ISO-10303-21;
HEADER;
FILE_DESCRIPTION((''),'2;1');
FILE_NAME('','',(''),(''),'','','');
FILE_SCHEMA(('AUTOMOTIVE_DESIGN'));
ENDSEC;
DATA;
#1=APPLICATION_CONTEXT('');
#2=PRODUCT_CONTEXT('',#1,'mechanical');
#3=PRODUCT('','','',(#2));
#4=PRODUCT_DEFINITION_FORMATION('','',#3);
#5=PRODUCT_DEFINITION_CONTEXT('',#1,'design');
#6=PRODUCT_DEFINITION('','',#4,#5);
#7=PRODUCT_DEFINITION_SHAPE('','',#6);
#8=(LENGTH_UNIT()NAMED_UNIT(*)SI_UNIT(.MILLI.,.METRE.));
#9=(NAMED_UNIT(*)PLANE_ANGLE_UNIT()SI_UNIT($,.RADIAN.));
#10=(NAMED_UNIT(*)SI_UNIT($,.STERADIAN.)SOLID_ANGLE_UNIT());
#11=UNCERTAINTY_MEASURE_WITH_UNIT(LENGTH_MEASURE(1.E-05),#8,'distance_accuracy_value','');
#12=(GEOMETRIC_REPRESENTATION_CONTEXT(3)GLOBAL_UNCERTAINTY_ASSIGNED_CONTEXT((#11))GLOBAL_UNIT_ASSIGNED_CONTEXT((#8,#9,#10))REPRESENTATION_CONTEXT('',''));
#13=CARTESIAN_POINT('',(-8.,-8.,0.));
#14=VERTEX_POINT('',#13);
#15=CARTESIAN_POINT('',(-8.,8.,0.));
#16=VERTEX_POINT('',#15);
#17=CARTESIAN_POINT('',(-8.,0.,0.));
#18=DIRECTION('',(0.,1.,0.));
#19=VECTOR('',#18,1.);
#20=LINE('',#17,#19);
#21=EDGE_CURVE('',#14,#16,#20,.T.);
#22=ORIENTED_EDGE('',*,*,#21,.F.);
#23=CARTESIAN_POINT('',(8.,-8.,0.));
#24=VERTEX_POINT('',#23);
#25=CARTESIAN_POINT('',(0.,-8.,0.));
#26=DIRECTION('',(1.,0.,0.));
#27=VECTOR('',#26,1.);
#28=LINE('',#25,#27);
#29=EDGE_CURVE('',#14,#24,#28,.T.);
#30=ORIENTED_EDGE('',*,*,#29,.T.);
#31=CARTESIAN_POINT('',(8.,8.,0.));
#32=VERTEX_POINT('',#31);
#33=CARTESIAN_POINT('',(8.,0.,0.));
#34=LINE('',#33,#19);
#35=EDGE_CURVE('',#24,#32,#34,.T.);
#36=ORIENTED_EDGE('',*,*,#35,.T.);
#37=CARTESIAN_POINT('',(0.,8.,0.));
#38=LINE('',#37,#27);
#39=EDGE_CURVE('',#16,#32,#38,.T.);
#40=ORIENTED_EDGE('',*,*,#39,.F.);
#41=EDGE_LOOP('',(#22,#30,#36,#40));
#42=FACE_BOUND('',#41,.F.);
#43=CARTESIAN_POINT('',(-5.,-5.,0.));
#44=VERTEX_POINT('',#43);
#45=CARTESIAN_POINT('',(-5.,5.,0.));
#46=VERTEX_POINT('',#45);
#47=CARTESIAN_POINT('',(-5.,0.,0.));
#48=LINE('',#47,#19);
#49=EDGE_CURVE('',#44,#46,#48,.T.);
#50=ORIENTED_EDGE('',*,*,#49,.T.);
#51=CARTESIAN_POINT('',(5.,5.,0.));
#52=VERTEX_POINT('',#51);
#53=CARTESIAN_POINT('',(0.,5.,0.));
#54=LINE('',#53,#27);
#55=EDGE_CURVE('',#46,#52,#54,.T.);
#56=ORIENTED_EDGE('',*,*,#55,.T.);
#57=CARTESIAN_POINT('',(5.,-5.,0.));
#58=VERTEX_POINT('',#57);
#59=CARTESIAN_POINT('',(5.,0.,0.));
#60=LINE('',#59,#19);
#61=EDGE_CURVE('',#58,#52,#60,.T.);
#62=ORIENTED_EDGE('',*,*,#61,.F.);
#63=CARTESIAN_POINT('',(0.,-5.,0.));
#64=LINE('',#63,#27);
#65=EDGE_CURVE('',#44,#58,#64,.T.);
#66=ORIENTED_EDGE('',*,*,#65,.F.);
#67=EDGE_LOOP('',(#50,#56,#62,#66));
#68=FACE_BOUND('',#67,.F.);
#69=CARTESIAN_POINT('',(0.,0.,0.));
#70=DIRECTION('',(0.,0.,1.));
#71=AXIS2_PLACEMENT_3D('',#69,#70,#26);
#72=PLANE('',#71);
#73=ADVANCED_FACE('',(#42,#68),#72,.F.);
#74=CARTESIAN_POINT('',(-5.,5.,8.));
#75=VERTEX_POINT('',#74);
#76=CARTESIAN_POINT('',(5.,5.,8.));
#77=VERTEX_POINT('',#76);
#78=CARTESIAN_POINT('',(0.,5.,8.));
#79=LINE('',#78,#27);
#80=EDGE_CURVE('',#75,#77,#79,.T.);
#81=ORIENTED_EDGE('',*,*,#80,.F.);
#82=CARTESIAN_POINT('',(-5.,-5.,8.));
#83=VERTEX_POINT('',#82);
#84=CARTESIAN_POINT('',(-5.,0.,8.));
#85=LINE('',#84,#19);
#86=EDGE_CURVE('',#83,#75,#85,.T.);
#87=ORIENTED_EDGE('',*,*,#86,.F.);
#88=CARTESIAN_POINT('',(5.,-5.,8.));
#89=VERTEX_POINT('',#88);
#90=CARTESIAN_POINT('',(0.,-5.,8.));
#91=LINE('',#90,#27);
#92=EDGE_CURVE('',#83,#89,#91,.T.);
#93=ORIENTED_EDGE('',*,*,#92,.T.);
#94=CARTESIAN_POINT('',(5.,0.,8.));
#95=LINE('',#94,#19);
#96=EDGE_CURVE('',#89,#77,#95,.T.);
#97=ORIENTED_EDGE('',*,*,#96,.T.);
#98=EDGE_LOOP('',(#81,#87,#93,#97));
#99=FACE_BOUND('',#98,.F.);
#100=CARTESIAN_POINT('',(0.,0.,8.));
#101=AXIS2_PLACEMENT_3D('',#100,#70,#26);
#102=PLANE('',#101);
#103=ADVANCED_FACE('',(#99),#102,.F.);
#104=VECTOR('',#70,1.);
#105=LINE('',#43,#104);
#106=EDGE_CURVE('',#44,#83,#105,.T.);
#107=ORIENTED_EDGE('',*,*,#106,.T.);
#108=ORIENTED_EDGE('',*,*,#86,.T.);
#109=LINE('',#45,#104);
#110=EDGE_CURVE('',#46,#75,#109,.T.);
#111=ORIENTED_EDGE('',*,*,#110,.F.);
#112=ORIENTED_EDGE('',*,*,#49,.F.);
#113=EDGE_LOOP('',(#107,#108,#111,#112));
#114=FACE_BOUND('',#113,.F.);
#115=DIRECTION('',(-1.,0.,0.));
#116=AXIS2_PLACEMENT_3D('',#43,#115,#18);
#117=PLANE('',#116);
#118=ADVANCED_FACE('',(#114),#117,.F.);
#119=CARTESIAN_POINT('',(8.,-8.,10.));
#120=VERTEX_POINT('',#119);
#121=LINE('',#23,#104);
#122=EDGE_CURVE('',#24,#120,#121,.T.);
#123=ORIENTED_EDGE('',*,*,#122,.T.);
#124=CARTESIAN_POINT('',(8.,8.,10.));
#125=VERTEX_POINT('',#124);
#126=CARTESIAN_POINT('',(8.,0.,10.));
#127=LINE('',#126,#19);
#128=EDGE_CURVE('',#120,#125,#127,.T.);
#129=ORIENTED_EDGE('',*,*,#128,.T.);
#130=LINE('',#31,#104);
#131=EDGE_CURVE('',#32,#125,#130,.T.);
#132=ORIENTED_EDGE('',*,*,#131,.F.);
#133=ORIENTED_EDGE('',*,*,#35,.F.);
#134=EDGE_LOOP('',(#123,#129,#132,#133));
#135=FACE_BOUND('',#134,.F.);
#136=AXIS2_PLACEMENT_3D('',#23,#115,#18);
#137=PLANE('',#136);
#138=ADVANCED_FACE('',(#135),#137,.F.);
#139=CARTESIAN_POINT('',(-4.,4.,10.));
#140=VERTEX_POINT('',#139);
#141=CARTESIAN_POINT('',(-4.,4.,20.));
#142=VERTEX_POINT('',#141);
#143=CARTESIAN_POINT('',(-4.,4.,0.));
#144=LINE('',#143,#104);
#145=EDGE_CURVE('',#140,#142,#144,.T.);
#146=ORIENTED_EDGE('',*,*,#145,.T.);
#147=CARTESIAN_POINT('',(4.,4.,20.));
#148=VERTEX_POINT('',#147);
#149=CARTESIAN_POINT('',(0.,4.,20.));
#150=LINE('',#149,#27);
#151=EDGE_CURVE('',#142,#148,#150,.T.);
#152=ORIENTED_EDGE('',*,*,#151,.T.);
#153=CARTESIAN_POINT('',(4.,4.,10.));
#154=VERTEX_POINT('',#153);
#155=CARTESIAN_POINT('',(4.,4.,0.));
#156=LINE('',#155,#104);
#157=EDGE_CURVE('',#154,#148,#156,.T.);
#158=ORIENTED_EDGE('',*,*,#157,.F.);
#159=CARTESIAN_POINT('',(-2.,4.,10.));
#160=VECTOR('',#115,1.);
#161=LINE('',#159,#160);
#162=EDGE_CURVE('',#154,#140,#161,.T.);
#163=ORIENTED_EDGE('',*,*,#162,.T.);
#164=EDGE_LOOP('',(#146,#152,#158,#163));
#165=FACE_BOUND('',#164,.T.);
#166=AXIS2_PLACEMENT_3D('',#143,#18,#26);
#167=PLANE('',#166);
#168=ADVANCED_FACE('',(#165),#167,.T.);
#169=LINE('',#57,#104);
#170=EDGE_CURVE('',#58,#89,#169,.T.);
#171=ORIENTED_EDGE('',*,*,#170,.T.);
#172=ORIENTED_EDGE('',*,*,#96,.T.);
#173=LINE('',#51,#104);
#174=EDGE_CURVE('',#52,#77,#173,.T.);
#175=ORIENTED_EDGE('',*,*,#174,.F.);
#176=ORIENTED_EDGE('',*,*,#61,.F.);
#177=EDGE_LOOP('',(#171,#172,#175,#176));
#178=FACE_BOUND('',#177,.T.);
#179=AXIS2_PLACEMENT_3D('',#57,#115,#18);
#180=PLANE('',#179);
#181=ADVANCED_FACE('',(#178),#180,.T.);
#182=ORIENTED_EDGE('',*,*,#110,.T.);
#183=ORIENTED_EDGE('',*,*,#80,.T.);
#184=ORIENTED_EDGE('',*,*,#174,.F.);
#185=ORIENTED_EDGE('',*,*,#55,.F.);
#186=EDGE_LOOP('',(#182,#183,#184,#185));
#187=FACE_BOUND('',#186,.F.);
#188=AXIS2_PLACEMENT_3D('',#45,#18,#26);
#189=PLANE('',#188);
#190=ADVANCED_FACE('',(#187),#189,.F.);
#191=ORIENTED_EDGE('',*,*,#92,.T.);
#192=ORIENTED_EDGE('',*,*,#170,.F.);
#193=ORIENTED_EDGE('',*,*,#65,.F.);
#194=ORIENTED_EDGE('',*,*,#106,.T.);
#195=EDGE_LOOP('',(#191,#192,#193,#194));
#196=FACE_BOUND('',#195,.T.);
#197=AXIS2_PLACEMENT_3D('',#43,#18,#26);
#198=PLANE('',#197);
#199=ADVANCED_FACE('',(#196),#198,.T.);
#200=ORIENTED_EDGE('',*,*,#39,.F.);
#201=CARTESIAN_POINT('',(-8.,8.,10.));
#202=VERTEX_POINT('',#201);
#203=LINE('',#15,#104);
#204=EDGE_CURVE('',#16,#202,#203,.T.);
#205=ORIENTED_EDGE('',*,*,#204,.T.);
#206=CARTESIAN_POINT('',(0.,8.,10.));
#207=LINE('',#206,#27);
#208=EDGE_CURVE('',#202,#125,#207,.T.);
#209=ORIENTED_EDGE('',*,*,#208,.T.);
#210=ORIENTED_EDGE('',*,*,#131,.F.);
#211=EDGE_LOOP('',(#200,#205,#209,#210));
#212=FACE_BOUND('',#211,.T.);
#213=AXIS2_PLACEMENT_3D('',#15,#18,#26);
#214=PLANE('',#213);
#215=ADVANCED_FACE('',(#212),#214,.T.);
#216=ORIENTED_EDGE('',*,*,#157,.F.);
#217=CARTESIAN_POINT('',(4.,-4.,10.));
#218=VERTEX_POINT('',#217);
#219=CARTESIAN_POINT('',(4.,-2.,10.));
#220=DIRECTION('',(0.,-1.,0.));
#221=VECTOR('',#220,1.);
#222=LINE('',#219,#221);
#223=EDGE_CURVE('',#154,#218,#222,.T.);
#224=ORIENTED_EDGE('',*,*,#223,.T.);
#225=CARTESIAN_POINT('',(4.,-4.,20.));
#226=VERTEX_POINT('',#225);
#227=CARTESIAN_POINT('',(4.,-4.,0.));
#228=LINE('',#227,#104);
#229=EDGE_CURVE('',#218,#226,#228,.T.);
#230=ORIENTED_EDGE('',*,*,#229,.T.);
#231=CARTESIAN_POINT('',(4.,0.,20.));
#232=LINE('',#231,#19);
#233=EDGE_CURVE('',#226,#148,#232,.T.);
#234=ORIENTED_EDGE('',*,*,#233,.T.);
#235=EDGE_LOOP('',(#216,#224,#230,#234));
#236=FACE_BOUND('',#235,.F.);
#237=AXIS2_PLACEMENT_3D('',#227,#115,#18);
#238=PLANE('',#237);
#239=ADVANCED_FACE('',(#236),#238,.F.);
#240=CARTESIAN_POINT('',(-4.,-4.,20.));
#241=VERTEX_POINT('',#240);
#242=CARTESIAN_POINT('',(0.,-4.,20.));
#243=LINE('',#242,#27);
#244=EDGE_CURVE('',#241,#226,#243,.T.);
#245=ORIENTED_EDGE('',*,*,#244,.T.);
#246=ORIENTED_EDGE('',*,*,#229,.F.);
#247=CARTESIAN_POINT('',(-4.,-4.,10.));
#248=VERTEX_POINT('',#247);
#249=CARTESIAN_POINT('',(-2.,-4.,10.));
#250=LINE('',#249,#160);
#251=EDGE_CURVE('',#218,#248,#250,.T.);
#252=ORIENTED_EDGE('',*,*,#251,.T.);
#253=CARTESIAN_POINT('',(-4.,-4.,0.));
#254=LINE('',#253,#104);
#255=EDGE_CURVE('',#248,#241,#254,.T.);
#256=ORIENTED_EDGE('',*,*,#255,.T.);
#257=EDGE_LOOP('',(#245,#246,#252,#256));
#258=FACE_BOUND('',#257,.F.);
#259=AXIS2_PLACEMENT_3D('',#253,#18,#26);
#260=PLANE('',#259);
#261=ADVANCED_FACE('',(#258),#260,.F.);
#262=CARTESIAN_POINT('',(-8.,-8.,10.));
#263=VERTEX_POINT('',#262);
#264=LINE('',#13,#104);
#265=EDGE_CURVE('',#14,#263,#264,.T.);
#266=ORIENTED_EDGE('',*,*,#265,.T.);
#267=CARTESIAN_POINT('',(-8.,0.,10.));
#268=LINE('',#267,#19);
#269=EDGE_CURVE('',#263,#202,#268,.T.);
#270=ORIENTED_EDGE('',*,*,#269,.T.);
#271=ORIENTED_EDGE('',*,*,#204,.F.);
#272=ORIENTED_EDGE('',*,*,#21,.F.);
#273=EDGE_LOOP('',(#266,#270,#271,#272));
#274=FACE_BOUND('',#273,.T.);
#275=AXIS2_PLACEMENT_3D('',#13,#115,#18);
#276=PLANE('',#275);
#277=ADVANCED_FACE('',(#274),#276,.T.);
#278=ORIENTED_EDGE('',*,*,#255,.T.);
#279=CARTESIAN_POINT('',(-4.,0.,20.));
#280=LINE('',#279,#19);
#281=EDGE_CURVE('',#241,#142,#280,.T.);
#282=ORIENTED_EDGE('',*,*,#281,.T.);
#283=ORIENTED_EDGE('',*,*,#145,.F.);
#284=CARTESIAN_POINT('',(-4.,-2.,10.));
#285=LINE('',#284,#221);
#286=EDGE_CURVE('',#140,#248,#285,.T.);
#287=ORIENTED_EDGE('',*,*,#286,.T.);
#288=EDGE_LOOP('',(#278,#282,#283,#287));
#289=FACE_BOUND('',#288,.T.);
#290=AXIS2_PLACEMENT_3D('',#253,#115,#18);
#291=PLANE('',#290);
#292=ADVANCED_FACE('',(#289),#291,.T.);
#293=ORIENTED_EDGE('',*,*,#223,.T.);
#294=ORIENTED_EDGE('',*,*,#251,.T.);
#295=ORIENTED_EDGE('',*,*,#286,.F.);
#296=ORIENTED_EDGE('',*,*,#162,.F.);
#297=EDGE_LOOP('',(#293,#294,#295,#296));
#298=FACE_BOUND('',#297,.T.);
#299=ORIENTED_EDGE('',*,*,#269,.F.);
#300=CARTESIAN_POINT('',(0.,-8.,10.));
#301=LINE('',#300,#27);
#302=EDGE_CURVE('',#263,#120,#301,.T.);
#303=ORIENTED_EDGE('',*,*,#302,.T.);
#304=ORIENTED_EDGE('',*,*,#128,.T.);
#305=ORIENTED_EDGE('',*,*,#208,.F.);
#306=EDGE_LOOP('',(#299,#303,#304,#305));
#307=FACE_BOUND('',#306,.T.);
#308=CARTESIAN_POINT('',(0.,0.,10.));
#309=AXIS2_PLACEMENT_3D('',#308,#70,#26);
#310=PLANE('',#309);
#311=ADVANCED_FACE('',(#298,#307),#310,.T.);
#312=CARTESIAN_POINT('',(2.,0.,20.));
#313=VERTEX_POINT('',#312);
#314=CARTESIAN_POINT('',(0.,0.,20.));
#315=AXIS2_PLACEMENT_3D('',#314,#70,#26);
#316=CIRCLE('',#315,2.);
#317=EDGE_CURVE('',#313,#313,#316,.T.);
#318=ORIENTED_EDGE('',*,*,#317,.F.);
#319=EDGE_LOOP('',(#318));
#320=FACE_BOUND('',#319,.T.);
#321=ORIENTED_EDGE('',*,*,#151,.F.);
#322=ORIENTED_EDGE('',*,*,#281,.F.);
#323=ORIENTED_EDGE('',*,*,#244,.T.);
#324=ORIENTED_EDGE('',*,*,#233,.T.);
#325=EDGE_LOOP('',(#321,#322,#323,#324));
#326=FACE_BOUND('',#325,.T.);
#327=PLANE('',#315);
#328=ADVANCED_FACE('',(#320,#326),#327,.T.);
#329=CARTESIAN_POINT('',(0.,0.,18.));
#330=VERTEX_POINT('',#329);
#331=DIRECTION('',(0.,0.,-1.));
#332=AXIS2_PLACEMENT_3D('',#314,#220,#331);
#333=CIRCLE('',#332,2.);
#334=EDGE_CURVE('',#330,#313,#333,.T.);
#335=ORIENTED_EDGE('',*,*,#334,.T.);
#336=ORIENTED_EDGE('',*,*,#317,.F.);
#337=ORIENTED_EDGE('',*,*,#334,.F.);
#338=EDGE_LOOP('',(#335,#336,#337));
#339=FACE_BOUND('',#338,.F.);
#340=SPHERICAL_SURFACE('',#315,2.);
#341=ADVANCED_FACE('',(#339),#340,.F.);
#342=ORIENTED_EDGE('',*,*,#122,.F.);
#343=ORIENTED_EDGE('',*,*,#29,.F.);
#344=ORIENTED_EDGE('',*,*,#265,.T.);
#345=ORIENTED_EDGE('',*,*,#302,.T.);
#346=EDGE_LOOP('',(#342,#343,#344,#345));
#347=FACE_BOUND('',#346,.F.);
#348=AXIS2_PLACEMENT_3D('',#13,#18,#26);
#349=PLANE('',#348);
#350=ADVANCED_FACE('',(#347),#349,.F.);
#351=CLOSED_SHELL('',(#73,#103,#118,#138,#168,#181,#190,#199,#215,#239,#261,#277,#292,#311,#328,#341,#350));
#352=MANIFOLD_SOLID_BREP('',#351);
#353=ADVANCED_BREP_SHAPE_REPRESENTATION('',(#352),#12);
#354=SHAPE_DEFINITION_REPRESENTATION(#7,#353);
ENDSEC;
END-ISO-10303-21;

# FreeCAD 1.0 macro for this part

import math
import FreeCAD as App
import Part
import Sketcher

V = App.Vector
Q = App.Units.Quantity


def add_polygon(sketch, points):
    """Adds a closed chain of lines whose ends are joined by coincident constraints."""
    first, n = sketch.GeometryCount, len(points)
    for a, b in zip(points, points[1:] + points[:1]):
        sketch.addGeometry(Part.LineSegment(App.Vector(*a, 0), App.Vector(*b, 0)), False)
    for i in range(n):
        sketch.addConstraint(Sketcher.Constraint("Coincident", first + i, 2, first + (i + 1) % n, 1))

doc = App.newDocument("Part")
body = doc.addObject("PartDesign::Body", "Body")

# Sketch on XY plane
sketch1 = doc.addObject("Sketcher::SketchObject", "Sketch")
body.addObject(sketch1)
sketch1.AttachmentSupport = (doc.XY_Plane, [""])
sketch1.MapMode = "FlatFace"
add_polygon(sketch1, [(-5, 5), (-5, -5), (5, -5), (5, 5)])  # lines 0-3
sketch1.addConstraint(Sketcher.Constraint("Vertical", 0))
sketch1.addConstraint(Sketcher.Constraint("Horizontal", 1))
sketch1.addConstraint(Sketcher.Constraint("Vertical", 2))
sketch1.addConstraint(Sketcher.Constraint("Horizontal", 3))
sketch1.addConstraint(Sketcher.Constraint("Symmetric", 0, 2, 2, 2, -1, 1))
sketch1.addConstraint(Sketcher.Constraint("Equal", 3, 0))
sketch1.addConstraint(Sketcher.Constraint("DistanceX", 1, 1, 1, 2, Q("10 mm")))
pad1 = doc.addObject("PartDesign::Pad", "Pad")
body.addObject(pad1)
pad1.Profile = sketch1
pad1.Length = 8
body2 = doc.addObject("PartDesign::Body", "Body001")

# Sketch on XY plane
sketch2 = doc.addObject("Sketcher::SketchObject", "Sketch001")
body2.addObject(sketch2)
sketch2.AttachmentSupport = (doc.getObject("XY_Plane001"), [""])
sketch2.MapMode = "FlatFace"
add_polygon(sketch2, [(-4, 4), (-4, -4), (4, -4), (4, 4)])  # lines 0-3
sketch2.addConstraint(Sketcher.Constraint("Vertical", 0))
sketch2.addConstraint(Sketcher.Constraint("Horizontal", 1))
sketch2.addConstraint(Sketcher.Constraint("Vertical", 2))
sketch2.addConstraint(Sketcher.Constraint("Horizontal", 3))
sketch2.addConstraint(Sketcher.Constraint("Symmetric", 0, 2, 2, 2, -1, 1))
sketch2.addConstraint(Sketcher.Constraint("Equal", 3, 0))
sketch2.addConstraint(Sketcher.Constraint("DistanceX", 1, 1, 1, 2, Q("8 mm")))
pad2 = doc.addObject("PartDesign::Pad", "Pad001")
body2.addObject(pad2)
pad2.Profile = sketch2
pad2.Length = 20

# Sketch on XZ plane
sketch3 = doc.addObject("Sketcher::SketchObject", "Sketch002")
body2.addObject(sketch3)
sketch3.AttachmentSupport = (doc.getObject("XZ_Plane001"), [""])
sketch3.MapMode = "FlatFace"
sketch3.addGeometry(Part.ArcOfCircle(Part.Circle(V(0, 20, 0), V(0, 0, 1), 2), math.radians(-90), math.radians(90)), False)
sketch3.addGeometry(Part.LineSegment(V(0, 22, 0), V(0, 18, 0)), False)
sketch3.addConstraint(Sketcher.Constraint("Coincident", 0, 1, 1, 2))
sketch3.addConstraint(Sketcher.Constraint("Coincident", 1, 1, 0, 2))
sketch3.addConstraint(Sketcher.Constraint("Vertical", 1))
sketch3.addConstraint(Sketcher.Constraint("PointOnObject", 0, 3, -2))
sketch3.addConstraint(Sketcher.Constraint("PointOnObject", 0, 1, -2))
sketch3.addConstraint(Sketcher.Constraint("Radius", 0, Q("2 mm")))
sketch3.addConstraint(Sketcher.Constraint("DistanceY", -1, 1, 0, 3, Q("20 mm")))
groove = doc.addObject("PartDesign::Groove", "Groove")
body2.addObject(groove)
groove.Profile = sketch3
groove.ReferenceAxis = (sketch3, ["V_Axis"])
groove.Angle = 360
body3 = doc.addObject("PartDesign::Body", "Body002")

# Sketch on XY plane
sketch4 = doc.addObject("Sketcher::SketchObject", "Sketch003")
body3.addObject(sketch4)
sketch4.AttachmentSupport = (doc.getObject("XY_Plane002"), [""])
sketch4.MapMode = "FlatFace"
add_polygon(sketch4, [(-8, 8), (-8, -8), (8, -8), (8, 8)])  # lines 0-3
sketch4.addConstraint(Sketcher.Constraint("Vertical", 0))
sketch4.addConstraint(Sketcher.Constraint("Horizontal", 1))
sketch4.addConstraint(Sketcher.Constraint("Vertical", 2))
sketch4.addConstraint(Sketcher.Constraint("Horizontal", 3))
sketch4.addConstraint(Sketcher.Constraint("Symmetric", 0, 2, 2, 2, -1, 1))
sketch4.addConstraint(Sketcher.Constraint("Equal", 3, 0))
sketch4.addConstraint(Sketcher.Constraint("DistanceX", 1, 1, 1, 2, Q("16 mm")))
pad3 = doc.addObject("PartDesign::Pad", "Pad002")
body3.addObject(pad3)
pad3.Profile = sketch4
pad3.Length = 10
doc.recompute()

boolean = doc.addObject("PartDesign::Boolean", "Boolean")
body3.addObject(boolean)
boolean.Type = "Fuse"
boolean.addObjects([body2])
doc.recompute()

boolean2 = doc.addObject("PartDesign::Boolean", "Boolean001")
body3.addObject(boolean2)
boolean2.Type = "Cut"
boolean2.addObjects([body])

doc.recompute()
